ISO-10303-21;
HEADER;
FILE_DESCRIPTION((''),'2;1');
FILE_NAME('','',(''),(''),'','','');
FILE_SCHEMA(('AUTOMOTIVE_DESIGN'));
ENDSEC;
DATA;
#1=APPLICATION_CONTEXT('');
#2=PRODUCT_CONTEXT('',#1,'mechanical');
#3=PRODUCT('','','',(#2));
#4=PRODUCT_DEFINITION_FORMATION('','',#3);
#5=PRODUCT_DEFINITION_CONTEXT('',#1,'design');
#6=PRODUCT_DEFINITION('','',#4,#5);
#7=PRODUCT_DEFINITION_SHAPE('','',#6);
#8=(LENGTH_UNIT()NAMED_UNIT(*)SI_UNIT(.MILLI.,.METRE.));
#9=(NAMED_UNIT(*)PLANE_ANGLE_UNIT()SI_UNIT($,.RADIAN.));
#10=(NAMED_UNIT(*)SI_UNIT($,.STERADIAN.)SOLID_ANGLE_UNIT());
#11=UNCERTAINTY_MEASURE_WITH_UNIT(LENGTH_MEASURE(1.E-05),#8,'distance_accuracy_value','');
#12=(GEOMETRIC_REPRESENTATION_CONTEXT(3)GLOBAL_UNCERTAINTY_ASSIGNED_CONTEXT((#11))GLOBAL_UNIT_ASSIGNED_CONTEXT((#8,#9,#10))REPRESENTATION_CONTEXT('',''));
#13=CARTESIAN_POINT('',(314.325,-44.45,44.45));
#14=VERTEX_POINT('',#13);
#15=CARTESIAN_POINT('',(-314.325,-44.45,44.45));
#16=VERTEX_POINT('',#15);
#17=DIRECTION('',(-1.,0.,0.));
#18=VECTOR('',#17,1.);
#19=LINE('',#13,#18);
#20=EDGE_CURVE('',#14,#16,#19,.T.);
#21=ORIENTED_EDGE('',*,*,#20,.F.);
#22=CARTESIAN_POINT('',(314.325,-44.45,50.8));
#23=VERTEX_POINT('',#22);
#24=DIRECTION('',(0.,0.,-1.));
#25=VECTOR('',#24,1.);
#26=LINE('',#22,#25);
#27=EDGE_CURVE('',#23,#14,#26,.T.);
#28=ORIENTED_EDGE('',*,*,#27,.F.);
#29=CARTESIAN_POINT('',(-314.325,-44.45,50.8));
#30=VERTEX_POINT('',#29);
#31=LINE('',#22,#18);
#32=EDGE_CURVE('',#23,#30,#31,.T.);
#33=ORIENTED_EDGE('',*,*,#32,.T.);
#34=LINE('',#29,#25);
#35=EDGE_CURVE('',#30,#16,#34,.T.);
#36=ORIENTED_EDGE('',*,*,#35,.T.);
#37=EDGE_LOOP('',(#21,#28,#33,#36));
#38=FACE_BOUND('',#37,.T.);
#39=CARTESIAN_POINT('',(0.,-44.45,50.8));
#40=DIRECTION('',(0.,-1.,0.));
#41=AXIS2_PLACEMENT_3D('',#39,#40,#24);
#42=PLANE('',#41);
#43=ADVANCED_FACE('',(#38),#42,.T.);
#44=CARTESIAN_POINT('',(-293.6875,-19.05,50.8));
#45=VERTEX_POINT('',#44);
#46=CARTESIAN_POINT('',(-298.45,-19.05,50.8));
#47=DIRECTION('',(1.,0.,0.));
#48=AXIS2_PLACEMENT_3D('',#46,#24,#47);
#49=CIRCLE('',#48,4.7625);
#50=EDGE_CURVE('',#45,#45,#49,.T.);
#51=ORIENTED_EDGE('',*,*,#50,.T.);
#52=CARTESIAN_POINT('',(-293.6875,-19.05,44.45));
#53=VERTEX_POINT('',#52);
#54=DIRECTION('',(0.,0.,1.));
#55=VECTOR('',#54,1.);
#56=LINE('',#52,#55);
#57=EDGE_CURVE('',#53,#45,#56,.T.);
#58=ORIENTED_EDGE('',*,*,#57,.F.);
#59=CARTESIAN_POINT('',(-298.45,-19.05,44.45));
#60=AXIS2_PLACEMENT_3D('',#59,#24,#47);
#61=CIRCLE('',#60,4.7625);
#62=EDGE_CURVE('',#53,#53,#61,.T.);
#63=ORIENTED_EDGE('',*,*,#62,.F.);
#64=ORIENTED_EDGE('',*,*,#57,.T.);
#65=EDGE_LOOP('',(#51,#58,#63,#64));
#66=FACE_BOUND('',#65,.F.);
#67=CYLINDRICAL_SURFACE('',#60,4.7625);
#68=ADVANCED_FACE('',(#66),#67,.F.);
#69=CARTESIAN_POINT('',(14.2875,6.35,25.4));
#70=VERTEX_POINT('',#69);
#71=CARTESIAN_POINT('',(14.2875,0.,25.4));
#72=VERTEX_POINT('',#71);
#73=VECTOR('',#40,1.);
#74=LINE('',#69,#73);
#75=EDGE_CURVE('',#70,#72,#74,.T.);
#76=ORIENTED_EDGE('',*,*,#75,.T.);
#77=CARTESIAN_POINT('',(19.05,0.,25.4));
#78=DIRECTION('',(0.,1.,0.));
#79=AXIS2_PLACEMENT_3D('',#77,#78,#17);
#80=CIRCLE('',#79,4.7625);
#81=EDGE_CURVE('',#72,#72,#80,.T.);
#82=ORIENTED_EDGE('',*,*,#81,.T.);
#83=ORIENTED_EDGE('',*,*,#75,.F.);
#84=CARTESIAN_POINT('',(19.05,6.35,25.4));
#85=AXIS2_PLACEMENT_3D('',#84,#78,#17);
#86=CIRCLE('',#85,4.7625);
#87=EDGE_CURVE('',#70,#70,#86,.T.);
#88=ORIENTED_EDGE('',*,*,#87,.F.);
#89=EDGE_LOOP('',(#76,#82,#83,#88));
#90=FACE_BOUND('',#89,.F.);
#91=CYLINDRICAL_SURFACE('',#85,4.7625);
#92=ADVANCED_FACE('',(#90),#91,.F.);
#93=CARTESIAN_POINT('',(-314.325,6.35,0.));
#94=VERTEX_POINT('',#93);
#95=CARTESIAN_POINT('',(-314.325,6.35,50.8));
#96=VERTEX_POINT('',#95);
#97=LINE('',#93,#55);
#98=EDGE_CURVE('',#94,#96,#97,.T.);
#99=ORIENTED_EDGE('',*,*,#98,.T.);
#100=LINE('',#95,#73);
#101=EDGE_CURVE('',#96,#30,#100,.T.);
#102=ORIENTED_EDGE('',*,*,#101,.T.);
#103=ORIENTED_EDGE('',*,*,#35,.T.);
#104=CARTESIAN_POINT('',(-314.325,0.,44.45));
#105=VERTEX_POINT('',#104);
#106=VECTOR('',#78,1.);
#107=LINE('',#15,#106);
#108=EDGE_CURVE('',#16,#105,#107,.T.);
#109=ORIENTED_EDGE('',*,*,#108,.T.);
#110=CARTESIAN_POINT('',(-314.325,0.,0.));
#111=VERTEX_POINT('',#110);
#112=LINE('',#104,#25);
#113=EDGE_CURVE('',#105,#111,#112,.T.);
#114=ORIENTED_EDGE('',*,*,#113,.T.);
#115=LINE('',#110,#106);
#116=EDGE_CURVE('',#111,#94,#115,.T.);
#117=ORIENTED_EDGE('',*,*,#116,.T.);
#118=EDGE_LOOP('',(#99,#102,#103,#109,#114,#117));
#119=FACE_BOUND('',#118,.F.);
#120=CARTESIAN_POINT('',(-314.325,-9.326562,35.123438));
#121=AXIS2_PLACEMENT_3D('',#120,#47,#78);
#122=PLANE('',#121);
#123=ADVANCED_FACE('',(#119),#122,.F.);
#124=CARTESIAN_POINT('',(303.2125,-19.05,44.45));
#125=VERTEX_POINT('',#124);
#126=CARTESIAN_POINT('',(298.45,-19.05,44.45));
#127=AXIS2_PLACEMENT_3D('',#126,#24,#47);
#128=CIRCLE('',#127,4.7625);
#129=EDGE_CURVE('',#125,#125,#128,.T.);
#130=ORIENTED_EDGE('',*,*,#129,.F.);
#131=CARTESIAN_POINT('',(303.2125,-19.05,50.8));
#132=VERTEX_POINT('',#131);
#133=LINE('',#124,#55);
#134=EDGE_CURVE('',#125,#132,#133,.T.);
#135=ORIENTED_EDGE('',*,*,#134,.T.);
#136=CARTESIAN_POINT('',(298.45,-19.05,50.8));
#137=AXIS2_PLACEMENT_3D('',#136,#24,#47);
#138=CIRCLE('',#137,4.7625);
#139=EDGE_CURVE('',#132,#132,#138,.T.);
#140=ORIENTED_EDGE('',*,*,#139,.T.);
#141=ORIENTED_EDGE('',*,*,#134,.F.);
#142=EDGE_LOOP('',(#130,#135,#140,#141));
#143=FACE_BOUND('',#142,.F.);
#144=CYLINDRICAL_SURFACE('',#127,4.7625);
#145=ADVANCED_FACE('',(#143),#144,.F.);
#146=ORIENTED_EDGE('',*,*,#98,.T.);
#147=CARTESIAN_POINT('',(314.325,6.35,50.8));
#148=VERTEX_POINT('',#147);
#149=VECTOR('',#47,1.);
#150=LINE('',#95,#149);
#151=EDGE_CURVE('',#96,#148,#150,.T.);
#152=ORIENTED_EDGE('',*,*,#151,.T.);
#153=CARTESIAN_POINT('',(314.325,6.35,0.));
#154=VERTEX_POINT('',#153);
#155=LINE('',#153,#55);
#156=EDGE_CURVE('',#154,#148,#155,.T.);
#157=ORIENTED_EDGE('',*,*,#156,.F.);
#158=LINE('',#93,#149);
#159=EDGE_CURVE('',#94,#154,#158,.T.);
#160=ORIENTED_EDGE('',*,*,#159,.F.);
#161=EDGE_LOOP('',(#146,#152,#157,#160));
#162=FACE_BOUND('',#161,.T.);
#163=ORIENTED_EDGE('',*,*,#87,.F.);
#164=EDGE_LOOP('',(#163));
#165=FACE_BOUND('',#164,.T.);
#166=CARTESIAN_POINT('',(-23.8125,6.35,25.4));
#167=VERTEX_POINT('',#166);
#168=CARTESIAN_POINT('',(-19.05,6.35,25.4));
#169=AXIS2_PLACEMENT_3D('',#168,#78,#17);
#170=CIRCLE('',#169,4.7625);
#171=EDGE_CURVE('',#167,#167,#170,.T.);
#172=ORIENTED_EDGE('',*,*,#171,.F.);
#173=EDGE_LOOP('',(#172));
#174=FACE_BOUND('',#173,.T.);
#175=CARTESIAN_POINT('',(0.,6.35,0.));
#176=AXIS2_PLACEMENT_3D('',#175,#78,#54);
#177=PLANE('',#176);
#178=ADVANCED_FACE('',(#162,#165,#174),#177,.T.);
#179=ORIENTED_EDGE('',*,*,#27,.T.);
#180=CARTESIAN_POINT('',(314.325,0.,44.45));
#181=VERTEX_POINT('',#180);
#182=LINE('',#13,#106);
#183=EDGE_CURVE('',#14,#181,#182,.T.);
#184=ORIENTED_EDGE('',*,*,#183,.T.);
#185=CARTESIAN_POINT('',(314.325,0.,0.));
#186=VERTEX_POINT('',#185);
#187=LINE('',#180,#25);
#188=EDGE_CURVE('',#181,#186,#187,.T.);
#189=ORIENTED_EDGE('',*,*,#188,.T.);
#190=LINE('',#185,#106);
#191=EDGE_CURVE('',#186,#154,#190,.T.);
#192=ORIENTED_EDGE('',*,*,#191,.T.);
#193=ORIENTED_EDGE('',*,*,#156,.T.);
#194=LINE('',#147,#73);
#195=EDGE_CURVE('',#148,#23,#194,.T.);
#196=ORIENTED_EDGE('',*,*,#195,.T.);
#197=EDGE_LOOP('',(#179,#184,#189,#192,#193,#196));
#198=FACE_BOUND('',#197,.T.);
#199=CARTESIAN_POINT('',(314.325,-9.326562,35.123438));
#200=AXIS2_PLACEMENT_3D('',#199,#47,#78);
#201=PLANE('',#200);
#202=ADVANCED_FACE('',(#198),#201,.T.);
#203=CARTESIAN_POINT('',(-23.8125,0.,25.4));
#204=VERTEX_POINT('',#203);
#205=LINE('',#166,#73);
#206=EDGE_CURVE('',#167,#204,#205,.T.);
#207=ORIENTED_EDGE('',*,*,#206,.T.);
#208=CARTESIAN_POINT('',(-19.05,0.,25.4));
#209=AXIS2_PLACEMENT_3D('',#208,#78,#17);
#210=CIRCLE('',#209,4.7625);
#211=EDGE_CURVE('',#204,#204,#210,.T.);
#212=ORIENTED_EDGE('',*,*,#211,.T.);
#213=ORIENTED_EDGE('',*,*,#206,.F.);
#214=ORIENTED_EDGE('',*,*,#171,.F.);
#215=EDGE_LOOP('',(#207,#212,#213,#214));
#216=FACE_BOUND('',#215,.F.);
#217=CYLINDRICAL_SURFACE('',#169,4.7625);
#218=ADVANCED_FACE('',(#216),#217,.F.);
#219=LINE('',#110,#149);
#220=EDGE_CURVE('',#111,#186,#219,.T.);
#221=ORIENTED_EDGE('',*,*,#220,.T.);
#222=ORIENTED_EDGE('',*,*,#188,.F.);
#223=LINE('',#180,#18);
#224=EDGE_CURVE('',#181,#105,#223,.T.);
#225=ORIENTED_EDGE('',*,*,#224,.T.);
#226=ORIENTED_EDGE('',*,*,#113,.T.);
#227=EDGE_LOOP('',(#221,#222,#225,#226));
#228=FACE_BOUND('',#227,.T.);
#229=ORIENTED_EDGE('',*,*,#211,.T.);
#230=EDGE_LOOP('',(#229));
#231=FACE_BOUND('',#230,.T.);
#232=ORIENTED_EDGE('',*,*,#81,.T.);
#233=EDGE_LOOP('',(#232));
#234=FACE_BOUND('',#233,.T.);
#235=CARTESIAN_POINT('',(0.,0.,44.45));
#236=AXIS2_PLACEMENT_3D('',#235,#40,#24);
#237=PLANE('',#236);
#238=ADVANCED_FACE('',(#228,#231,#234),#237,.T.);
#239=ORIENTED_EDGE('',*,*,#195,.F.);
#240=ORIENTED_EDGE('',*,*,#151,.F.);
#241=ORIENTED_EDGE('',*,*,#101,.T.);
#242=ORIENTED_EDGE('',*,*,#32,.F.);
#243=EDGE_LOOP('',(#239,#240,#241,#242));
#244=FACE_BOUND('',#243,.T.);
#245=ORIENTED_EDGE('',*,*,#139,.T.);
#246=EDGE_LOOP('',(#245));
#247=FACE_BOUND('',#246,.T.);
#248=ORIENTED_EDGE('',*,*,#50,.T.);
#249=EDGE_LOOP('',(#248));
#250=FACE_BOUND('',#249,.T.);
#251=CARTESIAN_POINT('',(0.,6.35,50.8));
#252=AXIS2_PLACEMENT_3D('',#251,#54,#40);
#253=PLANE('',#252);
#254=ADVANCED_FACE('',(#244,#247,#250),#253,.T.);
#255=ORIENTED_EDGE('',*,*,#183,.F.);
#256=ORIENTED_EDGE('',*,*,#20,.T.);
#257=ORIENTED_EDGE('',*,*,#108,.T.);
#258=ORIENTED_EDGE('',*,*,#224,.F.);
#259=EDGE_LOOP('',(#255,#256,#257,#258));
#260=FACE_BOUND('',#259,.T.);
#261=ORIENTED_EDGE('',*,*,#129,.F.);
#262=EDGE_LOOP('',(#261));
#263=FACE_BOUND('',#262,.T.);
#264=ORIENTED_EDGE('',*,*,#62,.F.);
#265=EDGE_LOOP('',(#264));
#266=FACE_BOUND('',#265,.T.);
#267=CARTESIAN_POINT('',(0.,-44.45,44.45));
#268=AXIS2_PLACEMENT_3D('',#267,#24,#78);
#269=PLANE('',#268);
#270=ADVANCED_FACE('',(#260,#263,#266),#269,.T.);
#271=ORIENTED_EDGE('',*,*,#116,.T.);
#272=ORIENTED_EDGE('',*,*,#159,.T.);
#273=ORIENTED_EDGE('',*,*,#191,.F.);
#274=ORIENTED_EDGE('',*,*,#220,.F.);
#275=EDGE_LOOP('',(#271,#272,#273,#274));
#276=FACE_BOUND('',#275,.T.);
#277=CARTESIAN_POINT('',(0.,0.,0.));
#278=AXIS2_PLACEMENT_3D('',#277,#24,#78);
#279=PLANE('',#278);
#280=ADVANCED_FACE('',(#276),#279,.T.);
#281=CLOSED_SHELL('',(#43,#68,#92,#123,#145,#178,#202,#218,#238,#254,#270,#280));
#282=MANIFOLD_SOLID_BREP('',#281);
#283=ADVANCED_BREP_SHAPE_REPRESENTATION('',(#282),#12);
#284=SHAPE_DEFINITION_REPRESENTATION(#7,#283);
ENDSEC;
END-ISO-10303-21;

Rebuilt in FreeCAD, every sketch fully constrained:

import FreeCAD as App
import Part
import Sketcher
Q = App.Units.Quantity

doc = App.newDocument("Part")
params = doc.addObject("Spreadsheet::Sheet", "Params")
for row, (alias, value) in enumerate([
    ("sketch1_width", "2 in"),
    ("sketch1_width2", "0.25 in"),
    ("pad1_length", "24.75 in"),
    ("sketch2_diameter", "0.375 in"),
    ("sketch3_diameter", "0.375 in"),
], start=1):
    params.set(f"A{row}", alias)
    params.set(f"B{row}", "=" + value)
    params.setAlias(f"B{row}", alias)

body = doc.addObject("PartDesign::Body", "Body")

sketch1 = body.newObject("Sketcher::SketchObject", "Sketch")
sketch1.AttachmentSupport = (doc.getObject("YZ_Plane"), [""])
sketch1.MapMode = "FlatFace"
sketch1.addGeometry(Part.LineSegment(App.Vector(0, 44.45, 0), App.Vector(0, 0, 0)), False)
sketch1.addGeometry(Part.LineSegment(App.Vector(0, 0, 0), App.Vector(6.35, 0, 0)), False)
sketch1.addGeometry(Part.LineSegment(App.Vector(6.35, 0, 0), App.Vector(6.35, 50.8, 0)), False)
sketch1.addGeometry(Part.LineSegment(App.Vector(6.35, 50.8, 0), App.Vector(-44.45, 50.8, 0)), False)
sketch1.addGeometry(Part.LineSegment(App.Vector(-44.45, 50.8, 0), App.Vector(-44.45, 44.45, 0)), False)
sketch1.addGeometry(Part.LineSegment(App.Vector(-44.45, 44.45, 0), App.Vector(0, 44.45, 0)), False)
sketch1.addConstraint(Sketcher.Constraint("Coincident", 0, 2, 1, 1))
sketch1.addConstraint(Sketcher.Constraint("Coincident", 1, 2, 2, 1))
sketch1.addConstraint(Sketcher.Constraint("Coincident", 2, 2, 3, 1))
sketch1.addConstraint(Sketcher.Constraint("Coincident", 3, 2, 4, 1))
sketch1.addConstraint(Sketcher.Constraint("Coincident", 4, 2, 5, 1))
sketch1.addConstraint(Sketcher.Constraint("Coincident", 5, 2, 0, 1))
sketch1.addConstraint(Sketcher.Constraint("Vertical", 0))
sketch1.addConstraint(Sketcher.Constraint("Horizontal", 1))
sketch1.addConstraint(Sketcher.Constraint("Vertical", 2))
sketch1.addConstraint(Sketcher.Constraint("Horizontal", 3))
sketch1.addConstraint(Sketcher.Constraint("Vertical", 4))
sketch1.addConstraint(Sketcher.Constraint("Horizontal", 5))
sketch1.addConstraint(Sketcher.Constraint("Coincident", 0, 2, -1, 1))
sketch1.addConstraint(Sketcher.Constraint("Equal", 5, 0))
sketch1.addConstraint(Sketcher.Constraint("Equal", 3, 2))
sketch1.addConstraint(Sketcher.Constraint("DistanceX", 3, 2, 3, 1, Q("2 in")))
sketch1.addConstraint(Sketcher.Constraint("DistanceX", 1, 1, 1, 2, Q("0.25 in")))
sketch1.setExpression("Constraints[15]", "Params.sketch1_width")
sketch1.setExpression("Constraints[16]", "Params.sketch1_width2")
pad1 = body.newObject("PartDesign::Pad", "Pad")
pad1.Profile = sketch1
pad1.setExpression("Length", "Params.pad1_length")
pad1.Midplane = True

sketch2 = body.newObject("Sketcher::SketchObject", "Sketch001")
sketch2.AttachmentSupport = (doc.getObject("XZ_Plane"), [""])
sketch2.MapMode = "FlatFace"
sketch2.AttachmentOffset = App.Placement(App.Vector(0, 0, -0.25 * 25.4), App.Rotation())
sketch2.addGeometry(Part.Circle(App.Vector(19.05, 25.4, 0), App.Vector(0, 0, 1), 4.7625), False)
sketch2.addGeometry(Part.Circle(App.Vector(-19.05, 25.4, 0), App.Vector(0, 0, 1), 4.7625), False)
sketch2.addConstraint(Sketcher.Constraint("Equal", 0, 1))
sketch2.addConstraint(Sketcher.Constraint("Symmetric", 0, 3, 1, 3, -2))
sketch2.addConstraint(Sketcher.Constraint("Diameter", 0, Q("0.375 in")))
sketch2.addConstraint(Sketcher.Constraint("DistanceY", -1, 1, 0, 3, Q("1 in")))
sketch2.addConstraint(Sketcher.Constraint("DistanceX", 1, 3, 0, 3, Q("1.5 in")))
sketch2.setExpression("Constraints[2]", "Params.sketch2_diameter")
pocket1 = body.newObject("PartDesign::Pocket", "Pocket")
pocket1.Profile = sketch2
pocket1.Type = "ThroughAll"
pocket1.Reversed = True

sketch3 = body.newObject("Sketcher::SketchObject", "Sketch002")
sketch3.AttachmentSupport = (doc.getObject("XY_Plane"), [""])
sketch3.MapMode = "FlatFace"
sketch3.AttachmentOffset = App.Placement(App.Vector(0, 0, 1.75 * 25.4), App.Rotation())
sketch3.addGeometry(Part.Circle(App.Vector(-298.45, -19.05, 0), App.Vector(0, 0, 1), 4.7625), False)
sketch3.addGeometry(Part.Circle(App.Vector(298.45, -19.05, 0), App.Vector(0, 0, 1), 4.7625), False)
sketch3.addConstraint(Sketcher.Constraint("Equal", 0, 1))
sketch3.addConstraint(Sketcher.Constraint("Symmetric", 0, 3, 1, 3, -2))
sketch3.addConstraint(Sketcher.Constraint("Diameter", 0, Q("0.375 in")))
sketch3.addConstraint(Sketcher.Constraint("DistanceX", 0, 3, 1, 3, Q("23.5 in")))
sketch3.addConstraint(Sketcher.Constraint("DistanceY", 0, 3, -1, 1, Q("0.75 in")))
sketch3.setExpression("Constraints[2]", "Params.sketch3_diameter")
pocket2 = body.newObject("PartDesign::Pocket", "Pocket001")
pocket2.Profile = sketch3
pocket2.Type = "ThroughAll"
pocket2.Reversed = True

doc.recompute()
